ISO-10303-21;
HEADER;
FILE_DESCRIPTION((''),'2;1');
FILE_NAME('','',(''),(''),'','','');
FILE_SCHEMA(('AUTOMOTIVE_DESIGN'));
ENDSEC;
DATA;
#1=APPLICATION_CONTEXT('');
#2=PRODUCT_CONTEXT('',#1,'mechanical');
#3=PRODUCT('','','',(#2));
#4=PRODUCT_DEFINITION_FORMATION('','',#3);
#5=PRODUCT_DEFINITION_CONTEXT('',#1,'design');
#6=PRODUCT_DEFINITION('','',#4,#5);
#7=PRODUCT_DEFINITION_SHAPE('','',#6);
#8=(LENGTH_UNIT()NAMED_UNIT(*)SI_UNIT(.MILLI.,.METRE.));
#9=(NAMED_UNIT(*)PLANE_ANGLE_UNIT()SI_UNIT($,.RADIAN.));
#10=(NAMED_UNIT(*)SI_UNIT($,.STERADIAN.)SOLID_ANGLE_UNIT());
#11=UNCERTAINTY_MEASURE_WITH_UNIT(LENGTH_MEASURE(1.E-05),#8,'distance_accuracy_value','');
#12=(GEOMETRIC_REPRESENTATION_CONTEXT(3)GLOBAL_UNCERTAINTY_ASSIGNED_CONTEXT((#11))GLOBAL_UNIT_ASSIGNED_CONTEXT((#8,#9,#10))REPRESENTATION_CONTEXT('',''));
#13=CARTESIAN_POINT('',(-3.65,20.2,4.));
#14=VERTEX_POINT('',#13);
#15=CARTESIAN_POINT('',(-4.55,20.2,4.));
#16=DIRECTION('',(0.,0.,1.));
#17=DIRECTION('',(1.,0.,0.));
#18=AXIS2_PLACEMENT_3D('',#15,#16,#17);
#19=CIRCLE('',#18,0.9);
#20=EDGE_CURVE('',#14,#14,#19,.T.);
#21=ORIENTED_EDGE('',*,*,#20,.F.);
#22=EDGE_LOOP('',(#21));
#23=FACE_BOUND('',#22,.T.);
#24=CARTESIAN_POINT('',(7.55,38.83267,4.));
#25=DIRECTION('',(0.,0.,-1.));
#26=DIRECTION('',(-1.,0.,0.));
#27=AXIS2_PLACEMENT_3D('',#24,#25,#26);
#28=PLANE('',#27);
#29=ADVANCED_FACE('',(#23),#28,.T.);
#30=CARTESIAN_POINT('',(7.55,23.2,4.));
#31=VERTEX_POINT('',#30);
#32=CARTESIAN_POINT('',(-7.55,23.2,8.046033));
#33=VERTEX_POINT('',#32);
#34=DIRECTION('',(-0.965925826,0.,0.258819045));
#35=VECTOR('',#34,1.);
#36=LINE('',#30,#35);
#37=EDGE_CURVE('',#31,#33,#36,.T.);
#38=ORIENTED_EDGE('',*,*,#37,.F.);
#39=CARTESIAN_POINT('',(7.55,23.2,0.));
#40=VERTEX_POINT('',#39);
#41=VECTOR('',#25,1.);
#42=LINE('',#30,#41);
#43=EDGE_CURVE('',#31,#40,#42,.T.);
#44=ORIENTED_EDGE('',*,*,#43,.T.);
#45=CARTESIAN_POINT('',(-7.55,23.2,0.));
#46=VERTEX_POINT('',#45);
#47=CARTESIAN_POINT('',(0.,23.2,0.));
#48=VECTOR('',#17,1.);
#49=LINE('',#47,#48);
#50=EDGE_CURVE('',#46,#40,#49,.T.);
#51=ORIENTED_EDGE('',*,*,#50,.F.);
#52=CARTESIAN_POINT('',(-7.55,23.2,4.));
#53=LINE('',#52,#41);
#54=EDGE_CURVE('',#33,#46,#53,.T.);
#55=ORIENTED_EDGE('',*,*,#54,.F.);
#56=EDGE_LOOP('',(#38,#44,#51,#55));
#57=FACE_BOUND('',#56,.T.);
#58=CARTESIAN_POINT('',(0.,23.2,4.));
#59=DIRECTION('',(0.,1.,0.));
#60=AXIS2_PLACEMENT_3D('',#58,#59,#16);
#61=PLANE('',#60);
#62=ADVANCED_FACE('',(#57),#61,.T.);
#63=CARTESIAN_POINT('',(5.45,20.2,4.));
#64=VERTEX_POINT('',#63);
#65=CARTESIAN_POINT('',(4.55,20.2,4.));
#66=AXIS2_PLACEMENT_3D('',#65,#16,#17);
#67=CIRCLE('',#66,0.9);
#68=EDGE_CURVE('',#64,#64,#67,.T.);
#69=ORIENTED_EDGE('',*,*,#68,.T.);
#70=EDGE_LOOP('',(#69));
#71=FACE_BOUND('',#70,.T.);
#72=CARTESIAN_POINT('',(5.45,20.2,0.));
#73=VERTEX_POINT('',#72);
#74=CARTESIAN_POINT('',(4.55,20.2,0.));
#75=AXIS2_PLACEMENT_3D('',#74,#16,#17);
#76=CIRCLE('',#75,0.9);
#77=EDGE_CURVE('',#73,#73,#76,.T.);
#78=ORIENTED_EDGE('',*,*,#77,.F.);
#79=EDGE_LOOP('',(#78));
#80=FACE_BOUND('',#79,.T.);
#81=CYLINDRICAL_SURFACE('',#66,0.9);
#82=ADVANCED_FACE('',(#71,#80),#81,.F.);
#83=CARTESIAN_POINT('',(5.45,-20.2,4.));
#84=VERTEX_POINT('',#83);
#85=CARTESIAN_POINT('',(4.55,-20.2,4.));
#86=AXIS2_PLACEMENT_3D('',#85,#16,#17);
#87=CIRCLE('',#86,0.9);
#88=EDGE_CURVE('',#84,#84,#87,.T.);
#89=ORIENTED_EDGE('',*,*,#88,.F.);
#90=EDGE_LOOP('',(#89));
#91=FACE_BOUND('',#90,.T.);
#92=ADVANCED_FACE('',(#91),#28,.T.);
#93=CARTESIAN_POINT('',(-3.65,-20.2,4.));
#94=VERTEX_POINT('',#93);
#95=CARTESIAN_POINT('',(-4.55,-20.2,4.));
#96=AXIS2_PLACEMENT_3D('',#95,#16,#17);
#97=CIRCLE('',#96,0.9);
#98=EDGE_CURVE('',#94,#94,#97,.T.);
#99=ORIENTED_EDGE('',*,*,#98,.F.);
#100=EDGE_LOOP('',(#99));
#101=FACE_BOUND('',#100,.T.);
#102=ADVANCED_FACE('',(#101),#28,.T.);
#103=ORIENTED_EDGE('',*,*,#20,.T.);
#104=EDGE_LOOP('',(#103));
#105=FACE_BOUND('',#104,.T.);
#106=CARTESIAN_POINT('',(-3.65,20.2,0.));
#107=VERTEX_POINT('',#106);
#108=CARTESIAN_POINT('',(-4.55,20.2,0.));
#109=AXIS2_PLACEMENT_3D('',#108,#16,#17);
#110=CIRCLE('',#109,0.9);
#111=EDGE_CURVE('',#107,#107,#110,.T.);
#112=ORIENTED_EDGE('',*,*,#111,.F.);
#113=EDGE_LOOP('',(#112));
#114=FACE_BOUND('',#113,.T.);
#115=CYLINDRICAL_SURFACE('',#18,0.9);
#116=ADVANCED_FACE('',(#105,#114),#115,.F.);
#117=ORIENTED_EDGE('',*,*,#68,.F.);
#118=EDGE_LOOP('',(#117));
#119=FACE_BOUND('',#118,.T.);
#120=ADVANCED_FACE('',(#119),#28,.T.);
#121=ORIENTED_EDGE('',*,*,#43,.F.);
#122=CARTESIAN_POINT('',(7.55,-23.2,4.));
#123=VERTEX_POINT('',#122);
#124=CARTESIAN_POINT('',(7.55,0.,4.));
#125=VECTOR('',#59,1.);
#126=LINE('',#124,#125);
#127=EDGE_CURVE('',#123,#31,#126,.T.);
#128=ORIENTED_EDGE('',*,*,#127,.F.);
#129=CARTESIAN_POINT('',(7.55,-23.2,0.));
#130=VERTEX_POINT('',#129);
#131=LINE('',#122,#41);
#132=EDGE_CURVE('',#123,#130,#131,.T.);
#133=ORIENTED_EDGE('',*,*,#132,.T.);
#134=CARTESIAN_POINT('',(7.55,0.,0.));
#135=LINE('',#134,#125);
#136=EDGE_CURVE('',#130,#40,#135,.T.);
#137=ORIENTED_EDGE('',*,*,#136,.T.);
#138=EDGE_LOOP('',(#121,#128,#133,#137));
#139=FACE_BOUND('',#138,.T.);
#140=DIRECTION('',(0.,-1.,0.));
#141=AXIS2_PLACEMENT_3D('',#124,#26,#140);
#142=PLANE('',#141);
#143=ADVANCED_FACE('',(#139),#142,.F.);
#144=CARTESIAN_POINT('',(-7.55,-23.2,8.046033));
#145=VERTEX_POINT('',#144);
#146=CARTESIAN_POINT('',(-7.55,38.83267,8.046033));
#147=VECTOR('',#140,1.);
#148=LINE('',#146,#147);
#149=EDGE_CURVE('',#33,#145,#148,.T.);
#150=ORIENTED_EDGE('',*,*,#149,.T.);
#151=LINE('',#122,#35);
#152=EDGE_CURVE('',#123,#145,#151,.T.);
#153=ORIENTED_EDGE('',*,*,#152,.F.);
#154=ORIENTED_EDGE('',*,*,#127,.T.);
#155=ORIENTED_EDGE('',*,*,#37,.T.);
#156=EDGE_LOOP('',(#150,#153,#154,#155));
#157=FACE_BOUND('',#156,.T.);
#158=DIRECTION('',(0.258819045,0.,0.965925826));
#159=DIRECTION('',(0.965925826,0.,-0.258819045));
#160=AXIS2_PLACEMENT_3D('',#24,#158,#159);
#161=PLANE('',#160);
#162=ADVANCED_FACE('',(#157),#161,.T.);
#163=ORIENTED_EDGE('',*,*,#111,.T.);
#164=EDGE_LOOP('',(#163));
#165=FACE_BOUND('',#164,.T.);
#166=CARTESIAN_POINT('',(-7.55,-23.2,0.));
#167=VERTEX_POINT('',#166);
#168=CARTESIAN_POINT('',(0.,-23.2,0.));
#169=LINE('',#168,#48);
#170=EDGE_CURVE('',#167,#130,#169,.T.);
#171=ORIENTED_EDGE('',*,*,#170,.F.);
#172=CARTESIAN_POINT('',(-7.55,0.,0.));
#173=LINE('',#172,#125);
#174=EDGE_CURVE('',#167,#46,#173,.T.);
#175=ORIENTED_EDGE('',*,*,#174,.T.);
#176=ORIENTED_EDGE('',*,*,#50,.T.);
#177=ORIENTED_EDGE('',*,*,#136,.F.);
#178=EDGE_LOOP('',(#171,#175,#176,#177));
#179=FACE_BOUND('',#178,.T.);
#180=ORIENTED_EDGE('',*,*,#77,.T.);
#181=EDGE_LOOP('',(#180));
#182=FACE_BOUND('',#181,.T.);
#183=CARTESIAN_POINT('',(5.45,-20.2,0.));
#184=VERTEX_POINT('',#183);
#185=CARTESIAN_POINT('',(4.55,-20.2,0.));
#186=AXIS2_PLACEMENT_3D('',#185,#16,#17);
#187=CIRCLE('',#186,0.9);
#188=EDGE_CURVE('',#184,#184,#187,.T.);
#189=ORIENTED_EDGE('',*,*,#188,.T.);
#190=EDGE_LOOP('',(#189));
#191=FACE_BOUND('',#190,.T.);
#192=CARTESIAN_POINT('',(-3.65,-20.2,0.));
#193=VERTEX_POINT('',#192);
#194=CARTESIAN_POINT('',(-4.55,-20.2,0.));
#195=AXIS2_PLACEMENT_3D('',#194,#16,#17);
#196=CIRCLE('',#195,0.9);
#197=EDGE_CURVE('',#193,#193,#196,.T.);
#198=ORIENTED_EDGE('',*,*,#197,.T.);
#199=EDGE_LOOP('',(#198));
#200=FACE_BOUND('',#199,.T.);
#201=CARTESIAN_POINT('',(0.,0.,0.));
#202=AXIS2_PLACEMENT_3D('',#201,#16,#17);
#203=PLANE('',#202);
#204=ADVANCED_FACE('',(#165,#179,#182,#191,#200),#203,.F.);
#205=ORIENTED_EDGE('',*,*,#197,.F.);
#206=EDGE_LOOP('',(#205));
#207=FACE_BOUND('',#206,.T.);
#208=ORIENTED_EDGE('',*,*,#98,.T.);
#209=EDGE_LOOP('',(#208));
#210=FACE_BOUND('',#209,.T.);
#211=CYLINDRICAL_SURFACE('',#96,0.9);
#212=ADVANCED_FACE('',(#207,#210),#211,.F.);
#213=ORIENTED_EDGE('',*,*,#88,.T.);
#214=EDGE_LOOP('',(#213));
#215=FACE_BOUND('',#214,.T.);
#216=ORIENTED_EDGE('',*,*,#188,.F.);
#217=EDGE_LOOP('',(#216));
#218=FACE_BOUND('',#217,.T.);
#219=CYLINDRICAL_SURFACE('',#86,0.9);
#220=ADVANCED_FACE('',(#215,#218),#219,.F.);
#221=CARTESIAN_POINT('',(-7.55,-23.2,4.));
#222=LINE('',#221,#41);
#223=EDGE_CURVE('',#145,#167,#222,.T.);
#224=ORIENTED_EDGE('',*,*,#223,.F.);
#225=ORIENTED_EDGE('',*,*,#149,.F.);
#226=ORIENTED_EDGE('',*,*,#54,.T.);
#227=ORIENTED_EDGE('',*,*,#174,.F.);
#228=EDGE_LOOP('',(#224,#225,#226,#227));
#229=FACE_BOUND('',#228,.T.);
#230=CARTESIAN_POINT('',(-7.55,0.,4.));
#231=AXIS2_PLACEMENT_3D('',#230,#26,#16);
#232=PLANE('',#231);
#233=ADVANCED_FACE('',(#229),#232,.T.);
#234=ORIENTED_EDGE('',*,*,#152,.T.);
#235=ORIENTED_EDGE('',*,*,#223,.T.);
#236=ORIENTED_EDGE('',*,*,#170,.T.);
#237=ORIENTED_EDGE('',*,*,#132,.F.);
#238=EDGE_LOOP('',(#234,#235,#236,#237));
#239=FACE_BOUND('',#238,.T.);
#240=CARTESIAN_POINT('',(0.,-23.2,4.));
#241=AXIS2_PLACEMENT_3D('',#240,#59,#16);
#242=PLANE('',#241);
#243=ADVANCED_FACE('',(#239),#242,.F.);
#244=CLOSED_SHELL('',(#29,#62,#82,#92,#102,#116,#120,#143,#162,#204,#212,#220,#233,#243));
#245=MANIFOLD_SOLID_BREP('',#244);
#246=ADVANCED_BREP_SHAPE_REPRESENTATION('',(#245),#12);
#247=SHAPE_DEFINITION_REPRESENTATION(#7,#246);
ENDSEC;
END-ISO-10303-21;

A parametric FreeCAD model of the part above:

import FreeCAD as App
import Part
import Sketcher

V = App.Vector
Q = App.Units.Quantity


def add_polygon(sketch, points):
    """Adds a closed chain of lines whose ends are joined by coincident constraints."""
    first, n = sketch.GeometryCount, len(points)
    for a, b in zip(points, points[1:] + points[:1]):
        sketch.addGeometry(Part.LineSegment(App.Vector(*a, 0), App.Vector(*b, 0)), False)
    for i in range(n):
        sketch.addConstraint(Sketcher.Constraint("Coincident", first + i, 2, first + (i + 1) % n, 1))

doc = App.newDocument("Part")
body = doc.addObject("PartDesign::Body", "Body")

# Sketch on XY plane
sketch1 = body.newObject("Sketcher::SketchObject", "Sketch")
sketch1.AttachmentSupport = (doc.getObject("XY_Plane"), [""])
sketch1.MapMode = "FlatFace"
add_polygon(sketch1, [(-7.55, 23.2), (-7.55, -23.2), (7.55, -23.2), (7.55, 23.2)])  # lines 0-3
sketch1.addConstraint(Sketcher.Constraint("Vertical", 0))
sketch1.addConstraint(Sketcher.Constraint("Horizontal", 1))
sketch1.addConstraint(Sketcher.Constraint("Vertical", 2))
sketch1.addConstraint(Sketcher.Constraint("Horizontal", 3))
sketch1.addConstraint(Sketcher.Constraint("Symmetric", 0, 2, 2, 2, -1, 1))
sketch1.addConstraint(Sketcher.Constraint("DistanceX", 1, 1, 1, 2, 15.1))
sketch1.addConstraint(Sketcher.Constraint("DistanceY", 0, 2, 0, 1, 46.4))
pad1 = body.newObject("PartDesign::Pad", "Pad")
pad1.Profile = sketch1
pad1.Length = 4

# Sketch on XY plane
sketch2 = body.newObject("Sketcher::SketchObject", "Sketch001")
sketch2.AttachmentSupport = (doc.getObject("XY_Plane"), [""])
sketch2.MapMode = "FlatFace"
sketch2.AttachmentOffset = App.Placement(V(0, 0, 4), App.Rotation())
sketch2.addGeometry(Part.Circle(V(-4.55, 20.2, 0), V(0, 0, 1), 0.9), False)
sketch2.addGeometry(Part.Circle(V(4.55, 20.2, 0), V(0, 0, 1), 0.9), False)
sketch2.addGeometry(Part.Circle(V(4.55, -20.2, 0), V(0, 0, 1), 0.9), False)
sketch2.addGeometry(Part.Circle(V(-4.55, -20.2, 0), V(0, 0, 1), 0.9), False)
sketch2.addConstraint(Sketcher.Constraint("Equal", 0, 1))
sketch2.addConstraint(Sketcher.Constraint("Equal", 1, 2))
sketch2.addConstraint(Sketcher.Constraint("Equal", 2, 3))
sketch2.addConstraint(Sketcher.Constraint("Symmetric", 0, 3, 2, 3, -1, 1))
sketch2.addConstraint(Sketcher.Constraint("Symmetric", 1, 3, 3, 3, -1, 1))
sketch2.addConstraint(Sketcher.Constraint("Symmetric", 0, 3, 1, 3, -2))
sketch2.addConstraint(Sketcher.Constraint("Diameter", 0, 1.8))
sketch2.addConstraint(Sketcher.Constraint("DistanceY", -1, 1, 0, 3, 20.2))
sketch2.addConstraint(Sketcher.Constraint("DistanceX", 0, 3, 1, 3, 9.1))
doc.recompute()
hole = body.newObject("PartDesign::Hole", "Hole")
hole.Profile = sketch2
hole.ThreadType = "None"
hole.Diameter = 1.8
hole.DepthType = "Dimension"
hole.Depth = 10
hole.DrillPoint = "Angled"
hole.DrillPointAngle = 118

# Sketch on XZ plane
sketch3 = body.newObject("Sketcher::SketchObject", "Sketch002")
sketch3.AttachmentSupport = (doc.getObject("XZ_Plane"), [""])
sketch3.MapMode = "FlatFace"
sketch3.AttachmentOffset = App.Placement(V(0, 0, 23.2), App.Rotation())
add_polygon(sketch3, [(7.55, 4), (-7.55, 8.046033), (-7.55, 4)])  # lines 0-2
sketch3.addConstraint(Sketcher.Constraint("Vertical", 1))
sketch3.addConstraint(Sketcher.Constraint("Horizontal", 2))
sketch3.addConstraint(Sketcher.Constraint("Angle", 0, Q("165 deg")))
sketch3.addConstraint(Sketcher.Constraint("DistanceX", 2, 1, 2, 2, 15.1))
sketch3.addConstraint(Sketcher.Constraint("DistanceY", -1, 1, 1, 2, 4.0))
sketch3.addConstraint(Sketcher.Constraint("DistanceX", 0, 2, -1, 1, 7.55))
pad2 = body.newObject("PartDesign::Pad", "Pad001")
pad2.Profile = sketch3
pad2.Length = 46.4
pad2.Reversed = True

doc.recompute()
